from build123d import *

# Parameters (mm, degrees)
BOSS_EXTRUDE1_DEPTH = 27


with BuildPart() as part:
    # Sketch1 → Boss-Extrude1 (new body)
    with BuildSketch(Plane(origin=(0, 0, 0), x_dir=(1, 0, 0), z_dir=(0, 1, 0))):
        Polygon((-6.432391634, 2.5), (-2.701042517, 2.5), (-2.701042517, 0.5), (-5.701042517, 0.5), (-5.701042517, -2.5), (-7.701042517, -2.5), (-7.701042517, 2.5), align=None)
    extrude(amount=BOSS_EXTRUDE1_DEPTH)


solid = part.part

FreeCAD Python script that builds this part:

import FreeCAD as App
import Part
import Sketcher


def add_polygon(sketch, points):
    """Adds a closed chain of lines whose ends are joined by coincident constraints."""
    first, n = sketch.GeometryCount, len(points)
    for a, b in zip(points, points[1:] + points[:1]):
        sketch.addGeometry(Part.LineSegment(App.Vector(*a, 0), App.Vector(*b, 0)), False)
    for i in range(n):
        sketch.addConstraint(Sketcher.Constraint("Coincident", first + i, 2, first + (i + 1) % n, 1))

doc = App.newDocument("Part")
body = doc.addObject("PartDesign::Body", "Body")

# Sketch on XZ plane
sketch1 = doc.addObject("Sketcher::SketchObject", "Sketch")
body.addObject(sketch1)
sketch1.AttachmentSupport = (doc.XZ_Plane, [""])
sketch1.MapMode = "FlatFace"
add_polygon(sketch1, [(-2.7, -2.5), (-7.7, -2.5), (-7.7, 2.5), (-5.7, 2.5), (-5.7, -0.5), (-2.7, -0.5)])  # lines 0-5
sketch1.addConstraint(Sketcher.Constraint("Horizontal", 0))
sketch1.addConstraint(Sketcher.Constraint("Vertical", 1))
sketch1.addConstraint(Sketcher.Constraint("Horizontal", 2))
sketch1.addConstraint(Sketcher.Constraint("Vertical", 3))
sketch1.addConstraint(Sketcher.Constraint("Horizontal", 4))
sketch1.addConstraint(Sketcher.Constraint("Vertical", 5))
sketch1.addConstraint(Sketcher.Constraint("Equal", 0, 1))
sketch1.addConstraint(Sketcher.Constraint("Equal", 4, 3))
sketch1.addConstraint(Sketcher.Constraint("DistanceX", 0, 2, 0, 1, 5.0))
sketch1.addConstraint(Sketcher.Constraint("DistanceX", 2, 1, 2, 2, 2.0))
sketch1.addConstraint(Sketcher.Constraint("DistanceY", 0, 2, -1, 1, 2.5))
sketch1.addConstraint(Sketcher.Constraint("DistanceX", 0, 2, -1, 1, 7.701043))
pad1 = doc.addObject("PartDesign::Pad", "Pad")
body.addObject(pad1)
pad1.Profile = sketch1
pad1.Length = 27
pad1.Reversed = True

doc.recompute()
